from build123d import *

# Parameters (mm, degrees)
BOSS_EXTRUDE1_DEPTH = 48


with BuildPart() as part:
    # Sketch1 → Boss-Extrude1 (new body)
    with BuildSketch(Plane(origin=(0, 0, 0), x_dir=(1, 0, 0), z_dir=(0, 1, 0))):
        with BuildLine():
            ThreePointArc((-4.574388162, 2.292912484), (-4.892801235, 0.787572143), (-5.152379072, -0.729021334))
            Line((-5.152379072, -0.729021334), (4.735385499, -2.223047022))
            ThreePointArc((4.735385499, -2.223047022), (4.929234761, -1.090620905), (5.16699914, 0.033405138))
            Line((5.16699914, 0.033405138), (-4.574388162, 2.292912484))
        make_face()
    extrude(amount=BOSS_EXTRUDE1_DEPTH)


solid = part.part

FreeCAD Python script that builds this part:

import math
import FreeCAD as App
import Part
import Sketcher
from FreeCAD import Vector

doc = App.newDocument("Part")
params = doc.addObject("Spreadsheet::Sheet", "Params")
for row, (alias, value) in enumerate([
    ("sketch1_length", "10 mm"),
    ("pad1_length", "48 mm"),
], start=1):
    params.set(f"A{row}", alias)
    params.set(f"B{row}", "=" + value)
    params.setAlias(f"B{row}", alias)

body = doc.addObject("PartDesign::Body", "Body")

sketch1 = body.newObject("Sketcher::SketchObject", "Sketch")
sketch1.AttachmentSupport = (doc.getObject("XZ_Plane"), [""])
sketch1.MapMode = "FlatFace"
sketch1.addGeometry(Part.ArcOfCircle(Part.Circle(Vector(33.925542, 6.637028, 0), Vector(0, 0, 1), 39.522), math.radians(-171.402829), math.radians(-166.941335)), False)
sketch1.addGeometry(Part.LineSegment(Vector(-5.152379, 0.729021, 0), Vector(4.735385, 2.223047, 0)), False)
sketch1.addGeometry(Part.ArcOfCircle(Part.Circle(Vector(33.925542, 6.637028, 0), Vector(0, 0, 1), 29.521999), math.radians(-171.401181), math.radians(-166.941377)), False)
sketch1.addGeometry(Part.LineSegment(Vector(5.166999, -0.033405, 0), Vector(-4.574388, -2.292912, 0)), False)
sketch1.addConstraint(Sketcher.Constraint("Coincident", 0, 1, 1, 1))
sketch1.addConstraint(Sketcher.Constraint("Coincident", 1, 2, 2, 1))
sketch1.addConstraint(Sketcher.Constraint("Coincident", 2, 2, 3, 1))
sketch1.addConstraint(Sketcher.Constraint("Coincident", 3, 2, 0, 2))
sketch1.addConstraint(Sketcher.Constraint("Coincident", 2, 3, 0, 3))
sketch1.addConstraint(Sketcher.Constraint("Distance", 1, 10.0))
sketch1.addConstraint(Sketcher.Constraint("Radius", 0, 39.522))
sketch1.addConstraint(Sketcher.Constraint("DistanceX", -1, 1, 2, 2, 5.166999))
sketch1.addConstraint(Sketcher.Constraint("DistanceX", -1, 1, 2, 3, 33.925542))
sketch1.addConstraint(Sketcher.Constraint("DistanceX", 0, 1, -1, 1, 5.152379))
sketch1.addConstraint(Sketcher.Constraint("DistanceY", -1, 1, 0, 1, 0.729021))
sketch1.addConstraint(Sketcher.Constraint("DistanceX", 3, 2, -1, 1, 4.574388))
sketch1.addConstraint(Sketcher.Constraint("DistanceY", 1, 2, 2, 3, 4.413981))
sketch1.setExpression("Constraints[5]", "Params.sketch1_length")
pad1 = body.newObject("PartDesign::Pad", "Pad")
pad1.Profile = sketch1
pad1.setExpression("Length", "Params.pad1_length")
pad1.Reversed = True

doc.recompute()
